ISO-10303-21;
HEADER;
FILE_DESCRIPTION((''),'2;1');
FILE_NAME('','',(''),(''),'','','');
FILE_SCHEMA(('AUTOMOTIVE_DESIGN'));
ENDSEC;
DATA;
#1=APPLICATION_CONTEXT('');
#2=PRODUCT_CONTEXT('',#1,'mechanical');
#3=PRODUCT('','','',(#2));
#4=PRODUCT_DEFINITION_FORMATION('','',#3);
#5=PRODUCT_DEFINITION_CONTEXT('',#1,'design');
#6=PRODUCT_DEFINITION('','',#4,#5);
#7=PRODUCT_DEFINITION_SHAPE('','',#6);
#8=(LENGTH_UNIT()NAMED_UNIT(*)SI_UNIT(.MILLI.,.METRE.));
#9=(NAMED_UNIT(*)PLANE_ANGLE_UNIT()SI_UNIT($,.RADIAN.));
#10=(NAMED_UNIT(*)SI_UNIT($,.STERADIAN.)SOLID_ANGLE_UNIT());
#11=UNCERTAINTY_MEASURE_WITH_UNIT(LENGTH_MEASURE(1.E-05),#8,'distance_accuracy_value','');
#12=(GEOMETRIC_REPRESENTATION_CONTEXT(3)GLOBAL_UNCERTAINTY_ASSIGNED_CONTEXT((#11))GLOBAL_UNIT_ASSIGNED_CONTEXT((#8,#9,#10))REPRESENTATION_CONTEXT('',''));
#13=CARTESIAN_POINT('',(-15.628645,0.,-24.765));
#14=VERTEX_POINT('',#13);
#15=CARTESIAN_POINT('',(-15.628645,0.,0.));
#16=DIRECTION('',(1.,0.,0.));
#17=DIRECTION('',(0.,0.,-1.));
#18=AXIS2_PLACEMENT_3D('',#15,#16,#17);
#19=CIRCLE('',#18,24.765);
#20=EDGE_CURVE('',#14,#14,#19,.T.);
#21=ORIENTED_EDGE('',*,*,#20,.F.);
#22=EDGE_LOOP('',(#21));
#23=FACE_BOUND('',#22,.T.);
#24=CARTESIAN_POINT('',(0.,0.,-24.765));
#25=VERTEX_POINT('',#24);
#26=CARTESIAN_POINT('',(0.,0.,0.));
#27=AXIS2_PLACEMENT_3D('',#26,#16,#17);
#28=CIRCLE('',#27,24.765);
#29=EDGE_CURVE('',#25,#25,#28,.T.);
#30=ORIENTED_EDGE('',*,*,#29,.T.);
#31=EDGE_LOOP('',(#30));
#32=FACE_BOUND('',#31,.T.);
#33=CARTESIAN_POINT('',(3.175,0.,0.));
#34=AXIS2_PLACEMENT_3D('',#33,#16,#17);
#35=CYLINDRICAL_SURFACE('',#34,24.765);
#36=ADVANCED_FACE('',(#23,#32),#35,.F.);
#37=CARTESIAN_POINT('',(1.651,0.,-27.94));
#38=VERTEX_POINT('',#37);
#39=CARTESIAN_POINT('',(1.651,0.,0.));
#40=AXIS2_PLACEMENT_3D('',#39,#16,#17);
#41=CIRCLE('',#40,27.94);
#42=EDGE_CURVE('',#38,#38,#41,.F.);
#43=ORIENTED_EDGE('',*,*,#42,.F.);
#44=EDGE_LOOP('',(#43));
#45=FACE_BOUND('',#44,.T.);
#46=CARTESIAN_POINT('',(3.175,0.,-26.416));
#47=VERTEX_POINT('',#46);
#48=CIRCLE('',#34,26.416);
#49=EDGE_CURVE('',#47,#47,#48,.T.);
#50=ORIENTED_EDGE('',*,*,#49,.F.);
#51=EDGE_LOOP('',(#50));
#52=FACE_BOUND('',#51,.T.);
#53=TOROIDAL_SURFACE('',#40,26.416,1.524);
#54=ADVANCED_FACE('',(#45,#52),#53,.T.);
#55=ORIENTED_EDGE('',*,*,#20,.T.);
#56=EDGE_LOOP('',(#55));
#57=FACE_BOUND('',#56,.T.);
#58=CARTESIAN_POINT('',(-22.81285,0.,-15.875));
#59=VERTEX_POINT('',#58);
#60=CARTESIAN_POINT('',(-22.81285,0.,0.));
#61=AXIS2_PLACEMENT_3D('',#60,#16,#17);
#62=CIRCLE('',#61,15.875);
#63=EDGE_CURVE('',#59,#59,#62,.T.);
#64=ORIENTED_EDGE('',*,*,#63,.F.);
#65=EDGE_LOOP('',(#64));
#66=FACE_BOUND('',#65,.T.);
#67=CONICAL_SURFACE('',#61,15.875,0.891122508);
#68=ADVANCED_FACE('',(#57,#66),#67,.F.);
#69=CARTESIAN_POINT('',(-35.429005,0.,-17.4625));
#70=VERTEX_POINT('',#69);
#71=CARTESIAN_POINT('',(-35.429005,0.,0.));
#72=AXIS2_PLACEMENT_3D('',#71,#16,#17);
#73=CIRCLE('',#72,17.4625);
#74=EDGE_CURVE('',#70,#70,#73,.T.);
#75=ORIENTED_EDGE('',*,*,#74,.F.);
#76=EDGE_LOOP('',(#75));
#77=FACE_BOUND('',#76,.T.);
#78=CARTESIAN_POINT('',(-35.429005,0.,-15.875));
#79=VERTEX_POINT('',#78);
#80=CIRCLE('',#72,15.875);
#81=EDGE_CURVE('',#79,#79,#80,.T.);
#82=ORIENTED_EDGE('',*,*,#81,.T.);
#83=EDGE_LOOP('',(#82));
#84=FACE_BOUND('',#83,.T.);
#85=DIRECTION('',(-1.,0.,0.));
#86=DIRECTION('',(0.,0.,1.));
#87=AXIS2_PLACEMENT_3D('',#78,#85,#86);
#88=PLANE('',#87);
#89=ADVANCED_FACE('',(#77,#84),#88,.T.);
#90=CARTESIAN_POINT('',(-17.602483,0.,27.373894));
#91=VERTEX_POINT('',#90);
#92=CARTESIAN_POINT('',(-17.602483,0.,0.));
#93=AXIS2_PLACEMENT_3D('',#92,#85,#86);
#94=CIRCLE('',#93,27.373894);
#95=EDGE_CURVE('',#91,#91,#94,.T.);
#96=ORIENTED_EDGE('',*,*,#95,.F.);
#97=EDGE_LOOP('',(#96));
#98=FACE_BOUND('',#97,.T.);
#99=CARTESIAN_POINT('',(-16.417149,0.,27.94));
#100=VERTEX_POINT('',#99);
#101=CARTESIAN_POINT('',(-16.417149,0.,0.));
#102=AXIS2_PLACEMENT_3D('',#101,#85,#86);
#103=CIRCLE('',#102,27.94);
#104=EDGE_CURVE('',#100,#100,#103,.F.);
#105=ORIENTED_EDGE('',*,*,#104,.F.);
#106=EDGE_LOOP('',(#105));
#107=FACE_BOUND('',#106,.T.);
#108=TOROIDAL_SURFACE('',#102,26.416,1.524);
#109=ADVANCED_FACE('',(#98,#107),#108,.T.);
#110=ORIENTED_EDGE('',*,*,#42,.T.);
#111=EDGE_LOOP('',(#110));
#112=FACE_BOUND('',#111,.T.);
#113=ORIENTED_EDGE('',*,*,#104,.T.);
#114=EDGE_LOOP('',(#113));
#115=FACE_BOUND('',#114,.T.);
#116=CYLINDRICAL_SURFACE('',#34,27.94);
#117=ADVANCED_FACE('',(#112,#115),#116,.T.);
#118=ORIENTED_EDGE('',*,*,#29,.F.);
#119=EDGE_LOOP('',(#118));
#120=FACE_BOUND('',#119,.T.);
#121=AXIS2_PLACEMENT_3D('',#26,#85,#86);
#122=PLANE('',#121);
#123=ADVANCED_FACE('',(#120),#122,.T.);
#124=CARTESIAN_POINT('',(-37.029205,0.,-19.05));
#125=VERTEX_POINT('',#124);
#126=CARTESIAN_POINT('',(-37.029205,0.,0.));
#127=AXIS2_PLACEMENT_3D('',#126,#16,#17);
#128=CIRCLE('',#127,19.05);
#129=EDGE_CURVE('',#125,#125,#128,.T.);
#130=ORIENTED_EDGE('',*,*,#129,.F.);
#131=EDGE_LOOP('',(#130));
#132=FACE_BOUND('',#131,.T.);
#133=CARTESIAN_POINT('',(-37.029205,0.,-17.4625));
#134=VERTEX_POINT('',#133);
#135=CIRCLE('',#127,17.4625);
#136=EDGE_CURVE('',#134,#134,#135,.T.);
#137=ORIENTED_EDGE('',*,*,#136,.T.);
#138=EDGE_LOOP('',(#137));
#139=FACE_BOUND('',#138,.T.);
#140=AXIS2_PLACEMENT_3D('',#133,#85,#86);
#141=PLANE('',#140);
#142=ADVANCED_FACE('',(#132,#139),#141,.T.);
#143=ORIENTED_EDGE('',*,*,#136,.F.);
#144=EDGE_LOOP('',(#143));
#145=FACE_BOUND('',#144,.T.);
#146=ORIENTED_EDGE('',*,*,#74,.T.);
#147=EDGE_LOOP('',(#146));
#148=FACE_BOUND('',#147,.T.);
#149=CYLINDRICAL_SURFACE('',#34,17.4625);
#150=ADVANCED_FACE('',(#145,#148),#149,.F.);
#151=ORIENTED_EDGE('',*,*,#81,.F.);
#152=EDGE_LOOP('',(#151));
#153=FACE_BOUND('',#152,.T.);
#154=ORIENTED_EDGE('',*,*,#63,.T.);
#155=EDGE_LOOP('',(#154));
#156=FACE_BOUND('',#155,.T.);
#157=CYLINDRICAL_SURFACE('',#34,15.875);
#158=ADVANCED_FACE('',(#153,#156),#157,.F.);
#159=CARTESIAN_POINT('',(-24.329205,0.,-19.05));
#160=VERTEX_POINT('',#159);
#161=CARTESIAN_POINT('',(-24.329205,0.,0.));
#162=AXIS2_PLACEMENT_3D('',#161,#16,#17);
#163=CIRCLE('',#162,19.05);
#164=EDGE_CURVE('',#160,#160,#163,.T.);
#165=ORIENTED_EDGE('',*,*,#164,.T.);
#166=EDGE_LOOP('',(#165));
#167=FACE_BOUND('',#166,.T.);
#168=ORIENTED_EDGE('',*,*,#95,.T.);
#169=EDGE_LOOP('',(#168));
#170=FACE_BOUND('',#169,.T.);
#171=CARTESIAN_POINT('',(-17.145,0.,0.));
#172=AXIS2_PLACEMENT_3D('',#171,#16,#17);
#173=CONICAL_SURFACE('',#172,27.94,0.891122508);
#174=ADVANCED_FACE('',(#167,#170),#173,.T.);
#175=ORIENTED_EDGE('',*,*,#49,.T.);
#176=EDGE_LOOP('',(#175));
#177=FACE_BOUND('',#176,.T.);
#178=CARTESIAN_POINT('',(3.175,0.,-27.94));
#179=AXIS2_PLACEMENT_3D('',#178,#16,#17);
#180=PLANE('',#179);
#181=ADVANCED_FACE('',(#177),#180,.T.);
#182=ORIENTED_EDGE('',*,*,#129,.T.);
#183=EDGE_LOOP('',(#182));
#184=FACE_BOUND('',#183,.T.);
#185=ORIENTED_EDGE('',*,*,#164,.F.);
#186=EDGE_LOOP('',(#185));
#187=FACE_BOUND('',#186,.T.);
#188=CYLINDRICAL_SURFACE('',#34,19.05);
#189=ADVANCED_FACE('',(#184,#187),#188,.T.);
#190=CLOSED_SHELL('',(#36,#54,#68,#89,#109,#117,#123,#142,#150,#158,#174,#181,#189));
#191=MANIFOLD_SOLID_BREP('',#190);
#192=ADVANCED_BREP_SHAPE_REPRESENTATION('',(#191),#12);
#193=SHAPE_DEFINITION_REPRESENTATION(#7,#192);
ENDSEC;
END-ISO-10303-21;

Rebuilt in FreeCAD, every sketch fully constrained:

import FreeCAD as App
import Part
import Sketcher
Q = App.Units.Quantity


def edges_at(feature, points):
    """Names of the edges that pass closest to the given points."""
    edges = feature.Shape.Edges
    near = lambda p: min(range(len(edges)), key=lambda i: edges[i].distToShape(Part.Vertex(*p))[0])
    return sorted({f"Edge{near(p) + 1}" for p in points})

doc = App.newDocument("Part")
body = doc.addObject("PartDesign::Body", "Body")

sketch1 = body.newObject("Sketcher::SketchObject", "Sketch")
sketch1.AttachmentSupport = (doc.getObject("XZ_Plane"), [""])
sketch1.MapMode = "FlatFace"
sketch1.addGeometry([
    Part.LineSegment(App.Vector(-37, -19.1, 0), App.Vector(-37, -17.5, 0)),
    Part.LineSegment(App.Vector(-37, -17.5, 0), App.Vector(-35.4, -17.5, 0)),
    Part.LineSegment(App.Vector(-35.4, -17.5, 0), App.Vector(-35.4, -15.9, 0)),
    Part.LineSegment(App.Vector(-35.4, -15.9, 0), App.Vector(-22.8, -15.9, 0)),
    Part.LineSegment(App.Vector(-22.8, -15.9, 0), App.Vector(-15.6, -24.8, 0)),
    Part.LineSegment(App.Vector(-15.6, -24.8, 0), App.Vector(0, -24.8, 0)),
    Part.LineSegment(App.Vector(0, -24.8, 0), App.Vector(0, 0, 0)),
    Part.LineSegment(App.Vector(0, 0, 0), App.Vector(3.2, 0, 0)),
    Part.LineSegment(App.Vector(3.2, 0, 0), App.Vector(3.2, -27.9, 0)),
    Part.LineSegment(App.Vector(3.2, -27.9, 0), App.Vector(-17.1, -27.9, 0)),
    Part.LineSegment(App.Vector(-17.1, -27.9, 0), App.Vector(-24.3, -19.1, 0)),
    Part.LineSegment(App.Vector(-24.3, -19.1, 0), App.Vector(-37, -19.1, 0)),
], False)
sketch1.addConstraint([
    Sketcher.Constraint("Coincident", 0, 2, 1, 1),
    Sketcher.Constraint("Coincident", 1, 2, 2, 1),
    Sketcher.Constraint("Coincident", 2, 2, 3, 1),
    Sketcher.Constraint("Coincident", 3, 2, 4, 1),
    Sketcher.Constraint("Coincident", 4, 2, 5, 1),
    Sketcher.Constraint("Coincident", 5, 2, 6, 1),
    Sketcher.Constraint("Coincident", 6, 2, 7, 1),
    Sketcher.Constraint("Coincident", 7, 2, 8, 1),
    Sketcher.Constraint("Coincident", 8, 2, 9, 1),
    Sketcher.Constraint("Coincident", 9, 2, 10, 1),
    Sketcher.Constraint("Coincident", 10, 2, 11, 1),
    Sketcher.Constraint("Coincident", 11, 2, 0, 1),
    Sketcher.Constraint("Vertical", 0),
    Sketcher.Constraint("Horizontal", 1),
    Sketcher.Constraint("Vertical", 2),
    Sketcher.Constraint("Horizontal", 3),
    Sketcher.Constraint("Horizontal", 5),
    Sketcher.Constraint("Vertical", 6),
    Sketcher.Constraint("Horizontal", 7),
    Sketcher.Constraint("Vertical", 8),
    Sketcher.Constraint("Horizontal", 9),
    Sketcher.Constraint("Horizontal", 11),
    Sketcher.Constraint("Coincident", 6, 2, -1, 1),
    Sketcher.Constraint("Parallel", 4, 10),
    Sketcher.Constraint("Equal", 0, 2),
    Sketcher.Constraint("Equal", 4, 10),
    Sketcher.Constraint("DistanceX", 9, 2, 9, 1, Q("0.8 in")),
    Sketcher.Constraint("DistanceX", 11, 2, 11, 1, Q("0.5 in")),
    Sketcher.Constraint("DistanceY", 8, 2, 8, 1, Q("1.1 in")),
    Sketcher.Constraint("Distance", 4, Q("0.45 in")),
    Sketcher.Constraint("DistanceX", 1, 1, 1, 2, Q("0.063 in")),
    Sketcher.Constraint("DistanceX", 7, 1, 7, 2, Q("0.125 in")),
    Sketcher.Constraint("DistanceY", 0, 1, 0, 2, Q("0.0625 in")),
    Sketcher.Constraint("DistanceY", 10, 2, -1, 1, Q("0.75 in")),
    Sketcher.Constraint("DistanceX", 3, 1, 3, 2, Q("12.616155 mm")),
])
revolution = body.newObject("PartDesign::Revolution", "Revolution")
revolution.Profile = sketch1
revolution.ReferenceAxis = (sketch1, ["H_Axis"])
revolution.Angle = 360
doc.recompute()

fillet = body.newObject("PartDesign::Fillet", "Fillet")
fillet.Base = (revolution, edges_at(revolution, [(3.175, 0, 27.94), (-17.145, 0, 27.94)]))
fillet.Radius = Q("0.06 in")

doc.recompute()
